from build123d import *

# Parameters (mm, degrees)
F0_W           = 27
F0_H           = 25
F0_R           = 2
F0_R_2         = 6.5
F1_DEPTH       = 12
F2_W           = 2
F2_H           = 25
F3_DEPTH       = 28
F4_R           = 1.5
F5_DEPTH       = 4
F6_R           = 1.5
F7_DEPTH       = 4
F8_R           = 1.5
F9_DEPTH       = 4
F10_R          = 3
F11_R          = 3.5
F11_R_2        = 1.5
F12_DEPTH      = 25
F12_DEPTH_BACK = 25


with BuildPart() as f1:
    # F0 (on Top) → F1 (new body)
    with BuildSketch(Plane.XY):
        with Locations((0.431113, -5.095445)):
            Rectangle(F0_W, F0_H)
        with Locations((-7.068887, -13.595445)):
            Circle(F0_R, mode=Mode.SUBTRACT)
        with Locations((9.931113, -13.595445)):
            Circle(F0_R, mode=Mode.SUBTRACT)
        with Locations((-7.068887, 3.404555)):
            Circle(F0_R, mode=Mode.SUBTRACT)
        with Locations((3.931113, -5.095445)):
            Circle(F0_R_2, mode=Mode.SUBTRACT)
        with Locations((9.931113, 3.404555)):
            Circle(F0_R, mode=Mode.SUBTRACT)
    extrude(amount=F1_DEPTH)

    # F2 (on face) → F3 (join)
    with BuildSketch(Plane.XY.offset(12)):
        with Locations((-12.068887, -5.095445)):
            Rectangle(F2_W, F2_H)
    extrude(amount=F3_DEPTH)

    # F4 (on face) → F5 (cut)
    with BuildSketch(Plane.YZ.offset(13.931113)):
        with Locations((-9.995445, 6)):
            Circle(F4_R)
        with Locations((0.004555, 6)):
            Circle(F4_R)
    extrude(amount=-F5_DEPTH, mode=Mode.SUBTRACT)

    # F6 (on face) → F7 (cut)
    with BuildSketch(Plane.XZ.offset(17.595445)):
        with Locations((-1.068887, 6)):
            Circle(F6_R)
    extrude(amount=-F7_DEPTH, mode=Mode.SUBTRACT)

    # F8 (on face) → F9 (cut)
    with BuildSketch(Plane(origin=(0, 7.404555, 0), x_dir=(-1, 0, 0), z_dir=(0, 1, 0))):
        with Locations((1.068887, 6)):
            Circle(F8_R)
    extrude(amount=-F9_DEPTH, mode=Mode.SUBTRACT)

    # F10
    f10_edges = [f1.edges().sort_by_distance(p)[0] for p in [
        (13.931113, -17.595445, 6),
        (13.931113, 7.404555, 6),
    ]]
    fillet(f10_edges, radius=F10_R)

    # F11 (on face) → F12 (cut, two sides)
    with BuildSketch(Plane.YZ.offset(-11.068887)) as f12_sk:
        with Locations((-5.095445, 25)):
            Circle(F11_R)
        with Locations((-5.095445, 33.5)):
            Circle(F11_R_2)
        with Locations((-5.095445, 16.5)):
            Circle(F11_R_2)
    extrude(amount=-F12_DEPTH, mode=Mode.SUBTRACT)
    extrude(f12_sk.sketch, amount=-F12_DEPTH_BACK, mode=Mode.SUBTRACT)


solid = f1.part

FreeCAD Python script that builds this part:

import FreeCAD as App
import Part
import Sketcher

V = App.Vector


def edges_at(feature, points):
    """Names of the edges that pass closest to the given points."""
    edges = feature.Shape.Edges
    near = lambda p: min(range(len(edges)), key=lambda i: edges[i].distToShape(Part.Vertex(*p))[0])
    return sorted({f"Edge{near(p) + 1}" for p in points})

doc = App.newDocument("Part")
body = doc.addObject("PartDesign::Body", "Body")

# Sketch on XY plane
sketch1 = doc.addObject("Sketcher::SketchObject", "Sketch")
body.addObject(sketch1)
sketch1.AttachmentSupport = (doc.XY_Plane, [""])
sketch1.MapMode = "FlatFace"
sketch1.addGeometry([
    Part.LineSegment(V(-13.068887, 7.404555, 0), V(-13.068887, -17.595445, 0)),  # 0
    Part.LineSegment(V(-13.068887, -17.595445, 0), V(13.931113, -17.595445, 0)),  # 1
    Part.LineSegment(V(13.931113, -17.595445, 0), V(13.931113, 7.404555, 0)),  # 2
    Part.LineSegment(V(13.931113, 7.404555, 0), V(-13.068887, 7.404555, 0)),  # 3
    Part.Circle(V(-7.068887, -13.595445, 0), V(0, 0, 1), 2),  # 4
    Part.Circle(V(9.931113, -13.595445, 0), V(0, 0, 1), 2),  # 5
    Part.Circle(V(-7.068887, 3.404555, 0), V(0, 0, 1), 2),  # 6
    Part.Circle(V(3.931113, -5.095445, 0), V(0, 0, 1), 6.5),  # 7
    Part.Circle(V(9.931113, 3.404555, 0), V(0, 0, 1), 2),  # 8
], False)
sketch1.addConstraint([
    Sketcher.Constraint("Coincident", 0, 2, 1, 1),
    Sketcher.Constraint("Coincident", 1, 2, 2, 1),
    Sketcher.Constraint("Coincident", 2, 2, 3, 1),
    Sketcher.Constraint("Coincident", 3, 2, 0, 1),
    Sketcher.Constraint("Vertical", 0),
    Sketcher.Constraint("Horizontal", 1),
    Sketcher.Constraint("Vertical", 2),
    Sketcher.Constraint("Horizontal", 3),
    Sketcher.Constraint("Equal", 4, 5),
    Sketcher.Constraint("Equal", 5, 6),
    Sketcher.Constraint("Equal", 6, 8),
    Sketcher.Constraint("Horizontal", 4, 3, 5, 3),
    Sketcher.Constraint("Horizontal", 6, 3, 8, 3),
    Sketcher.Constraint("Vertical", 4, 3, 6, 3),
    Sketcher.Constraint("Vertical", 5, 3, 8, 3),
    Sketcher.Constraint("Diameter", 4, 4.0),
    Sketcher.Constraint("Diameter", 7, 13.0),
    Sketcher.Constraint("DistanceX", 1, 1, 1, 2, 27.0),
    Sketcher.Constraint("DistanceY", 0, 2, 0, 1, 25.0),
    Sketcher.Constraint("DistanceX", 4, 3, 5, 3, 17.0),
    Sketcher.Constraint("DistanceY", 4, 3, 6, 3, 17.0),
    Sketcher.Constraint("DistanceX", 7, 3, 5, 3, 6.0),
    Sketcher.Constraint("DistanceX", 0, 2, 4, 3, 6.0),
    Sketcher.Constraint("DistanceY", 0, 2, 4, 3, 4.0),
    Sketcher.Constraint("DistanceY", 5, 3, 7, 3, 8.5),
    Sketcher.Constraint("DistanceX", 4, 3, -1, 1, 7.068887),
    Sketcher.Constraint("DistanceY", 4, 3, -1, 1, 13.595445),
])
pad1 = doc.addObject("PartDesign::Pad", "Pad")
body.addObject(pad1)
pad1.Profile = sketch1
pad1.Length = 12

# Sketch on XY plane
sketch2 = doc.addObject("Sketcher::SketchObject", "Sketch001")
body.addObject(sketch2)
sketch2.AttachmentSupport = (doc.XY_Plane, [""])
sketch2.MapMode = "FlatFace"
sketch2.AttachmentOffset = App.Placement(V(0, 0, 12), App.Rotation())
sketch2.addGeometry([
    Part.LineSegment(V(-13.068887, 7.404555, 0), V(-13.068887, -17.595445, 0)),
    Part.LineSegment(V(-13.068887, -17.595445, 0), V(-11.068887, -17.595445, 0)),
    Part.LineSegment(V(-11.068887, -17.595445, 0), V(-11.068887, 7.404555, 0)),
    Part.LineSegment(V(-11.068887, 7.404555, 0), V(-13.068887, 7.404555, 0)),
], False)
sketch2.addConstraint([
    Sketcher.Constraint("Coincident", 0, 2, 1, 1),
    Sketcher.Constraint("Coincident", 1, 2, 2, 1),
    Sketcher.Constraint("Coincident", 2, 2, 3, 1),
    Sketcher.Constraint("Coincident", 3, 2, 0, 1),
    Sketcher.Constraint("Vertical", 0),
    Sketcher.Constraint("Horizontal", 1),
    Sketcher.Constraint("Vertical", 2),
    Sketcher.Constraint("Horizontal", 3),
    Sketcher.Constraint("DistanceX", 1, 1, 1, 2, 2.0),
    Sketcher.Constraint("DistanceY", 0, 2, 0, 1, 25.0),
    Sketcher.Constraint("DistanceX", 0, 2, -1, 1, 13.068887),
    Sketcher.Constraint("DistanceY", 0, 2, -1, 1, 17.595445),
])
pad2 = doc.addObject("PartDesign::Pad", "Pad001")
body.addObject(pad2)
pad2.Profile = sketch2
pad2.Length = 28

# Sketch on YZ plane
sketch3 = doc.addObject("Sketcher::SketchObject", "Sketch002")
body.addObject(sketch3)
sketch3.AttachmentSupport = (doc.YZ_Plane, [""])
sketch3.MapMode = "FlatFace"
sketch3.AttachmentOffset = App.Placement(V(0, 0, 13.931113), App.Rotation())
sketch3.addGeometry([
    Part.Circle(V(-9.995445, 6, 0), V(0, 0, 1), 1.5),
    Part.Circle(V(0.004555, 6, 0), V(0, 0, 1), 1.5),
], False)
sketch3.addConstraint([
    Sketcher.Constraint("Equal", 0, 1),
    Sketcher.Constraint("Horizontal", 0, 3, 1, 3),
    Sketcher.Constraint("Diameter", 0, 3.0),
    Sketcher.Constraint("DistanceY", -1, 1, 0, 3, 6.0),
    Sketcher.Constraint("DistanceX", 0, 3, 1, 3, 10.0),
    Sketcher.Constraint("DistanceX", 0, 3, -1, 1, 9.995445),
])
pocket1 = doc.addObject("PartDesign::Pocket", "Pocket")
body.addObject(pocket1)
pocket1.Profile = sketch3
pocket1.Length = 4

# Sketch on XZ plane
sketch4 = doc.addObject("Sketcher::SketchObject", "Sketch003")
body.addObject(sketch4)
sketch4.AttachmentSupport = (doc.XZ_Plane, [""])
sketch4.MapMode = "FlatFace"
sketch4.AttachmentOffset = App.Placement(V(0, 0, 17.595445), App.Rotation())
sketch4.addGeometry(Part.Circle(V(-1.068887, 6, 0), V(0, 0, 1), 1.5), False)
sketch4.addConstraint([
    Sketcher.Constraint("Diameter", 0, 3.0),
    Sketcher.Constraint("DistanceY", -1, 1, 0, 3, 6.0),
    Sketcher.Constraint("DistanceX", 0, 3, -1, 1, 1.068887),
])
pocket2 = doc.addObject("PartDesign::Pocket", "Pocket001")
body.addObject(pocket2)
pocket2.Profile = sketch4
pocket2.Length = 4

# Sketch on XZ plane
sketch5 = doc.addObject("Sketcher::SketchObject", "Sketch004")
body.addObject(sketch5)
sketch5.AttachmentSupport = (doc.XZ_Plane, [""])
sketch5.MapMode = "FlatFace"
sketch5.AttachmentOffset = App.Placement(V(0, 0, -7.404555), App.Rotation())
sketch5.addGeometry(Part.Circle(V(-1.068887, 6, 0), V(0, 0, 1), 1.5), False)
sketch5.addConstraint([
    Sketcher.Constraint("Diameter", 0, 3.0),
    Sketcher.Constraint("DistanceY", -1, 1, 0, 3, 6.0),
    Sketcher.Constraint("DistanceX", 0, 3, -1, 1, 1.068887),
])
pocket3 = doc.addObject("PartDesign::Pocket", "Pocket002")
body.addObject(pocket3)
pocket3.Profile = sketch5
pocket3.Length = 4
pocket3.Reversed = True
doc.recompute()

fillet = doc.addObject("PartDesign::Fillet", "Fillet")
body.addObject(fillet)
fillet.Base = (pocket3, edges_at(pocket3, [(13.931, -17.595, 6), (13.931, 7.405, 6)]))
fillet.Radius = 3

# Sketch on YZ plane
sketch6 = doc.addObject("Sketcher::SketchObject", "Sketch005")
body.addObject(sketch6)
sketch6.AttachmentSupport = (doc.YZ_Plane, [""])
sketch6.MapMode = "FlatFace"
sketch6.AttachmentOffset = App.Placement(V(0, 0, -11.068887), App.Rotation())
sketch6.addGeometry([
    Part.Circle(V(-5.095445, 25, 0), V(0, 0, 1), 3.5),
    Part.Circle(V(-5.095445, 33.5, 0), V(0, 0, 1), 1.5),
    Part.Circle(V(-5.095445, 16.5, 0), V(0, 0, 1), 1.5),
], False)
sketch6.addConstraint([
    Sketcher.Constraint("Equal", 1, 2),
    Sketcher.Constraint("Vertical", 0, 3, 1, 3),
    Sketcher.Constraint("Vertical", 1, 3, 2, 3),
    Sketcher.Constraint("Diameter", 0, 7.0),
    Sketcher.Constraint("Diameter", 1, 3.0),
    Sketcher.Constraint("DistanceY", -1, 1, 0, 3, 25.0),
    Sketcher.Constraint("DistanceY", 2, 3, 1, 3, 17.0),
    Sketcher.Constraint("DistanceY", -1, 1, 1, 3, 33.5),
    Sketcher.Constraint("DistanceX", 0, 3, -1, 1, 5.095445),
])
pocket4 = doc.addObject("PartDesign::Pocket", "Pocket003")
body.addObject(pocket4)
pocket4.Profile = sketch6
pocket4.Length = 25
pocket5 = doc.addObject("PartDesign::Pocket", "Pocket004")
body.addObject(pocket5)
pocket5.Profile = sketch6
pocket5.Length = 25

doc.recompute()
